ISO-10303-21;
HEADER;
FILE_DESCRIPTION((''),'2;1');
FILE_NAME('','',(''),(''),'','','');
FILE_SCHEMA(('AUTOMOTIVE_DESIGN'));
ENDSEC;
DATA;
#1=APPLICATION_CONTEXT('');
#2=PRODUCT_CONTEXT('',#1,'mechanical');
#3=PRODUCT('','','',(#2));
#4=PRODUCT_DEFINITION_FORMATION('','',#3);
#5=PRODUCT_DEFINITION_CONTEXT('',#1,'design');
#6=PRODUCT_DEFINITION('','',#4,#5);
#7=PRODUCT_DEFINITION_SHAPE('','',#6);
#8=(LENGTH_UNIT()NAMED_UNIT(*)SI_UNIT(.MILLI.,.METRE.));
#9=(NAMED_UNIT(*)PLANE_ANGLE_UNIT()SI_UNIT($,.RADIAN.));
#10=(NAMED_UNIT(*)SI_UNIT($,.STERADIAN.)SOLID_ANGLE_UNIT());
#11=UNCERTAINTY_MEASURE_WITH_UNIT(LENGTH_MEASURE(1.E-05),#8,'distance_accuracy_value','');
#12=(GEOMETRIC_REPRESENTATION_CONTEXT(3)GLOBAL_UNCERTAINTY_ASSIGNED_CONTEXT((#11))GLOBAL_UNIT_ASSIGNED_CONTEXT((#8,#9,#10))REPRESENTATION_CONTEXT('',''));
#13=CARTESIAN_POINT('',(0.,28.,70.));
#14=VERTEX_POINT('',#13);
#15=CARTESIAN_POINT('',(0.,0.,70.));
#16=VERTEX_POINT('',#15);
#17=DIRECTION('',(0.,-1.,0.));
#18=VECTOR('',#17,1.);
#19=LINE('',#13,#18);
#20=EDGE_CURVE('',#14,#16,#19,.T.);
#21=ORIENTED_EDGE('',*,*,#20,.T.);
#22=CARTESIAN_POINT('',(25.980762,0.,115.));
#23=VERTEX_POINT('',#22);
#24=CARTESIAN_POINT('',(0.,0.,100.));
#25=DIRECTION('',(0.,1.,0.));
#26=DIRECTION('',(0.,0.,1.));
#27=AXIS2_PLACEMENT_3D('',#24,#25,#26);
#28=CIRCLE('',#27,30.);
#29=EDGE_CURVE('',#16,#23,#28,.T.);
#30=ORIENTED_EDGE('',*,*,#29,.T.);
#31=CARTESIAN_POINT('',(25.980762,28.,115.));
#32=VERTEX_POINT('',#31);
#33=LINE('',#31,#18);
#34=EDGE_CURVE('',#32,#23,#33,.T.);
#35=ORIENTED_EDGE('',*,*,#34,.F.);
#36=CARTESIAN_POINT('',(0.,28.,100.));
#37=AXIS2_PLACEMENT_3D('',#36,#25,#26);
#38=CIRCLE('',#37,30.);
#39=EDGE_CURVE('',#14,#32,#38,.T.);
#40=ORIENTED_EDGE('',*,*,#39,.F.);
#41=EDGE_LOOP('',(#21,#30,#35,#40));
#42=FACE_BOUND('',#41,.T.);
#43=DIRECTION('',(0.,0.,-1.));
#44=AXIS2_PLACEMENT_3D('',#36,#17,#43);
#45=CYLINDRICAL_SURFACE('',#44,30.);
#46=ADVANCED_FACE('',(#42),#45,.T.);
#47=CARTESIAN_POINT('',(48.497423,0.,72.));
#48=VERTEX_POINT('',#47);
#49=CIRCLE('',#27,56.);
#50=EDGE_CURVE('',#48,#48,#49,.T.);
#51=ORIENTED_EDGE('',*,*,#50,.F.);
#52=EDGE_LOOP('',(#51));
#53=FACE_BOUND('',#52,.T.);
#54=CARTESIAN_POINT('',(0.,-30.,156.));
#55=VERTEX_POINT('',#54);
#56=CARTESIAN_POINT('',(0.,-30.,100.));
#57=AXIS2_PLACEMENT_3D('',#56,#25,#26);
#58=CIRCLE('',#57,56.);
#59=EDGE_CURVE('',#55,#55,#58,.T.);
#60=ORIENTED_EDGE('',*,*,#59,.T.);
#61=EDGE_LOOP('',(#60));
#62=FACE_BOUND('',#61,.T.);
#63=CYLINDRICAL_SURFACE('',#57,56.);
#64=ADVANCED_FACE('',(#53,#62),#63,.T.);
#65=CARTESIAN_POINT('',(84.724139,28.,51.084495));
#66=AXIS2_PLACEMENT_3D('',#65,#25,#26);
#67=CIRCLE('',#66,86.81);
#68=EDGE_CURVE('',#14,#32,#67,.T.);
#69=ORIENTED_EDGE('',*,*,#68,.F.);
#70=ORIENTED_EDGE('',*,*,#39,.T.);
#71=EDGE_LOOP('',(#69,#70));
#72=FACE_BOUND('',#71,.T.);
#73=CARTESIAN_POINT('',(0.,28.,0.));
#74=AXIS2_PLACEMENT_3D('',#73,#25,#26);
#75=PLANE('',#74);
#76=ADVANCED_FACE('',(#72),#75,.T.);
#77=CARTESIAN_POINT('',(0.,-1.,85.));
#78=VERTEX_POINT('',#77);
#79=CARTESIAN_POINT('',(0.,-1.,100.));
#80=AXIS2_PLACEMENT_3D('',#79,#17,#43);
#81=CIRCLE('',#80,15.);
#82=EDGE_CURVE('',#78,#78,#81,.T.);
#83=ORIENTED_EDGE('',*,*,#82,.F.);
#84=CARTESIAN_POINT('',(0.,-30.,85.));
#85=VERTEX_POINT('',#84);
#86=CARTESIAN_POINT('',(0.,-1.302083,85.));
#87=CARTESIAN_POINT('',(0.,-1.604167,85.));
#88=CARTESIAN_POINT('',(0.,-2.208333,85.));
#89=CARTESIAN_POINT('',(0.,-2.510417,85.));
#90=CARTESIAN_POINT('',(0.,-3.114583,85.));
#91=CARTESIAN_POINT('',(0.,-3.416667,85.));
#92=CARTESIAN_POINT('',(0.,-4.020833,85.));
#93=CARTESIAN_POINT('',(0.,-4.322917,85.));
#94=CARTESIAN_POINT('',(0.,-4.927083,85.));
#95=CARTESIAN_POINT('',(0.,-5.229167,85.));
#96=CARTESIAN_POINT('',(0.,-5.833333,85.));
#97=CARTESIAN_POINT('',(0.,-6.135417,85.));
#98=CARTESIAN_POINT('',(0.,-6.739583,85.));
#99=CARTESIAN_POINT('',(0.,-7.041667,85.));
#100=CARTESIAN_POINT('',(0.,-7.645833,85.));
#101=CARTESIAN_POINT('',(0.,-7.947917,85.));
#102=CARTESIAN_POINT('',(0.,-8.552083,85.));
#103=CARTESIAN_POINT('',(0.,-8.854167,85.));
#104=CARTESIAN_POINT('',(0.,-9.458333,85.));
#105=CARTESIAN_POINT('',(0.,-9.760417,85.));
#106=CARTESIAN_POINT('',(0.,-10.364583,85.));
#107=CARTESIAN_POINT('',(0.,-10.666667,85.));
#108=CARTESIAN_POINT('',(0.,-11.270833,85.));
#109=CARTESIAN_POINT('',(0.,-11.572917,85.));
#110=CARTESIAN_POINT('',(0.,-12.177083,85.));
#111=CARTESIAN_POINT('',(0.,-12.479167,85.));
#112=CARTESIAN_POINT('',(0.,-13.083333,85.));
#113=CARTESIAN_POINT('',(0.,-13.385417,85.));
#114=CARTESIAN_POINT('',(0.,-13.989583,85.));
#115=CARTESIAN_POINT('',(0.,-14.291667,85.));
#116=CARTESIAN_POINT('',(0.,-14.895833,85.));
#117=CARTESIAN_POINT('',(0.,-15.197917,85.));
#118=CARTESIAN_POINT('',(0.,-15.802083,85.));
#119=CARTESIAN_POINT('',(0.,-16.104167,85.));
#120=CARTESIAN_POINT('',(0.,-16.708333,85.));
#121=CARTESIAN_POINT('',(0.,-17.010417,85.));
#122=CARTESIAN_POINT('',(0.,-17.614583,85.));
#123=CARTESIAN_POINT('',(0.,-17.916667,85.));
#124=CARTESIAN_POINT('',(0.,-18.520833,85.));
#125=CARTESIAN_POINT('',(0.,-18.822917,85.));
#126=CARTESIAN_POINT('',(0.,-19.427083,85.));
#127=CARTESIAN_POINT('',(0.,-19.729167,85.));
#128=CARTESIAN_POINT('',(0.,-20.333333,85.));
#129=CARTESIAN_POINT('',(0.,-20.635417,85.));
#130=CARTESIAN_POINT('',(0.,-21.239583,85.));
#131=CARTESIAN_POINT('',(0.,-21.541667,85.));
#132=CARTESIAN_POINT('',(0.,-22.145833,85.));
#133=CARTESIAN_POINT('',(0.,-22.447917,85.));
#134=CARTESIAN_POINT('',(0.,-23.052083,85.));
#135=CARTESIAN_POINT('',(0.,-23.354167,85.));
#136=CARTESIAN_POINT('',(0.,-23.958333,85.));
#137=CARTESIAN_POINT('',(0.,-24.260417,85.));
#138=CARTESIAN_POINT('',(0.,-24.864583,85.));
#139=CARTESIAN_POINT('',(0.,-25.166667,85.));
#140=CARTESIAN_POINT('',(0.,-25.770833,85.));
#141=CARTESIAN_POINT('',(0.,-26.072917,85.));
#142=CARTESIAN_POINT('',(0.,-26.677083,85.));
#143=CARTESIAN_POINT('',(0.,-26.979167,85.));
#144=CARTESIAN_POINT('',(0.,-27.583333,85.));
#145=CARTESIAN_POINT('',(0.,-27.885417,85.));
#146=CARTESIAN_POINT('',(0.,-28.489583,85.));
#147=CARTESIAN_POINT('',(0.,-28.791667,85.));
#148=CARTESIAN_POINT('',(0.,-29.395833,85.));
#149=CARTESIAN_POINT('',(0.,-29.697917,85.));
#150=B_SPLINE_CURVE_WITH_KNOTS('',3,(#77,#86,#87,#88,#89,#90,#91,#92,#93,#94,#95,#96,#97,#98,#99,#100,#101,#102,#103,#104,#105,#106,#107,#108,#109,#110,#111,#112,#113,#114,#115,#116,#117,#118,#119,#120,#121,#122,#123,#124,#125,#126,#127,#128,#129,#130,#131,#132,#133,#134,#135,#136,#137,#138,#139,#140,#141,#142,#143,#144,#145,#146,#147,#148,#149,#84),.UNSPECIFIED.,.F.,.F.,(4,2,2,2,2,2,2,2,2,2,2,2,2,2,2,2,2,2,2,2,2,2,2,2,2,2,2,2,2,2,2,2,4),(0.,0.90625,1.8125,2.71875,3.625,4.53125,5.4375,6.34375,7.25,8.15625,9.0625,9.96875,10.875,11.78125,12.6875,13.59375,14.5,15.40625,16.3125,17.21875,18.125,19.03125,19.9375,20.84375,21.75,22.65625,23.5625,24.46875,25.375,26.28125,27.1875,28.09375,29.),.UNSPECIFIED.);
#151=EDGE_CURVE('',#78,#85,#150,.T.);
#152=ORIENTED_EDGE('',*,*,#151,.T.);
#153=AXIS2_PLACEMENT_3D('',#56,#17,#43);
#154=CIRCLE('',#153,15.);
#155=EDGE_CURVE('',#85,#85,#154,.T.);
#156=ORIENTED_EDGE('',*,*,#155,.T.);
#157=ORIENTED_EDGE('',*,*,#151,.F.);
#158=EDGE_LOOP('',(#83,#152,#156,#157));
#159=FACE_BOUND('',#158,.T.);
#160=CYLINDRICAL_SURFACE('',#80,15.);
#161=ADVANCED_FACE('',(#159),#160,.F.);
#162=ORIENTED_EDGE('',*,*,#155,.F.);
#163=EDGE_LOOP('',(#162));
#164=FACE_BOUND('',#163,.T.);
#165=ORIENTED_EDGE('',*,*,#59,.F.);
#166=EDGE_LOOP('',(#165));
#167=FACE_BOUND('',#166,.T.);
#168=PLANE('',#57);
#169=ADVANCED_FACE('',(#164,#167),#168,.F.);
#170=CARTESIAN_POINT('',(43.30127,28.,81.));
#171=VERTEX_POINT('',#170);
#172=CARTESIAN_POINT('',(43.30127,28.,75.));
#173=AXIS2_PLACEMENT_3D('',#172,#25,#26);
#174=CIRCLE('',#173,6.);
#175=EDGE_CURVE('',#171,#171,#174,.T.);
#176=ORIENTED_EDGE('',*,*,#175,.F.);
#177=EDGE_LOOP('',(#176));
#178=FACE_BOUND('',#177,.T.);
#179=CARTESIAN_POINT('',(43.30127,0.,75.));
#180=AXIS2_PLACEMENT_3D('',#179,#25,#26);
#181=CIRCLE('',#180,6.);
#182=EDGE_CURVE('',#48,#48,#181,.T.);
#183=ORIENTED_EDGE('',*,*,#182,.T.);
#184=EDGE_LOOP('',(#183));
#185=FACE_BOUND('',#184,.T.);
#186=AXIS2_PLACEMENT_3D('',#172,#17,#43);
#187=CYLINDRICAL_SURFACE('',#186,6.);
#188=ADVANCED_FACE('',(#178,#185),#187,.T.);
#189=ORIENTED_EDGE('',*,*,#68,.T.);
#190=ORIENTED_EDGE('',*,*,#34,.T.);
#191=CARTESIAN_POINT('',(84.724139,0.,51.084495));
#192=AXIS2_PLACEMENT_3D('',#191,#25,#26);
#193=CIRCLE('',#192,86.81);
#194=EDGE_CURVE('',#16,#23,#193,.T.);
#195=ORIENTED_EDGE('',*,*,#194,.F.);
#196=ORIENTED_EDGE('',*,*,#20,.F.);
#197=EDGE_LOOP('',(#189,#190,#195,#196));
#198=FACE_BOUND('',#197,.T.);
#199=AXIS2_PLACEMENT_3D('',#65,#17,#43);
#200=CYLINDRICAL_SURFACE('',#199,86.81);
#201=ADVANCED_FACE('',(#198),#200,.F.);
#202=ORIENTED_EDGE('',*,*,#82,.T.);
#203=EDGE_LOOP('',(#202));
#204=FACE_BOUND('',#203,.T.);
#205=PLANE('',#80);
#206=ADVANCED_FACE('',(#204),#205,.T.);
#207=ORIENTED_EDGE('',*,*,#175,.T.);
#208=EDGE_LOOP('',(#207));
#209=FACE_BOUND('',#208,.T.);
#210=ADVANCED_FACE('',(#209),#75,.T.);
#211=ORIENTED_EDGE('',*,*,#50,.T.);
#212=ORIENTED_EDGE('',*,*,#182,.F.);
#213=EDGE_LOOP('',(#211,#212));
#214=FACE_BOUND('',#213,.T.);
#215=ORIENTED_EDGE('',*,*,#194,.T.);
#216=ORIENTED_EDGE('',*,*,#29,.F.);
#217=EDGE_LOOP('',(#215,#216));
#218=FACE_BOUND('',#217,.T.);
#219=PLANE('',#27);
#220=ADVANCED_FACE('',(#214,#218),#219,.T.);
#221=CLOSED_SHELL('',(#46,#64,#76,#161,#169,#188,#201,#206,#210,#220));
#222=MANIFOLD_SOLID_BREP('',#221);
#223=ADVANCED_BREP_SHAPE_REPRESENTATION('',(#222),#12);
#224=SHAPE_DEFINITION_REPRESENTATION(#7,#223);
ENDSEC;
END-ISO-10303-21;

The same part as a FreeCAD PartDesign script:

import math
import FreeCAD as App
import Part
import Sketcher
from FreeCAD import Vector

doc = App.newDocument("Part")
body = doc.addObject("PartDesign::Body", "Body")

# Sketch on XZ plane
sketch1 = doc.addObject("Sketcher::SketchObject", "Sketch")
body.addObject(sketch1)
sketch1.AttachmentSupport = (doc.XZ_Plane, [""])
sketch1.MapMode = "FlatFace"
sketch1.addGeometry(Part.Circle(Vector(43, 75, 0), Vector(0, 0, 1), 6), False)
sketch1.addConstraint([
    Sketcher.Constraint("Diameter", 0, 12.0),
    Sketcher.Constraint("DistanceY", -1, 1, 0, 3, 75.0),
    Sketcher.Constraint("DistanceX", -1, 1, 0, 3, 43.30127),
])
pad1 = doc.addObject("PartDesign::Pad", "Pad")
body.addObject(pad1)
pad1.Profile = sketch1
pad1.Length = 28
pad1.Reversed = True
body2 = doc.addObject("PartDesign::Body", "Body001")

# Sketch on XZ plane
sketch2 = doc.addObject("Sketcher::SketchObject", "Sketch001")
body2.addObject(sketch2)
sketch2.AttachmentSupport = (doc.getObject("XZ_Plane001"), [""])
sketch2.MapMode = "FlatFace"
sketch2.addGeometry([
    Part.ArcOfCircle(Part.Circle(Vector(85, 51, 0), Vector(0, 0, 1), 87), math.radians(133), math.radians(167)),
    Part.ArcOfCircle(Part.Circle(Vector(0, 100, 0), Vector(0, 0, 1), 30), math.radians(30), math.radians(270)),
], False)
sketch2.addConstraint([
    Sketcher.Constraint("Coincident", 0, 1, 1, 1),
    Sketcher.Constraint("Coincident", 1, 2, 0, 2),
    Sketcher.Constraint("PointOnObject", 1, 3, -2),
    Sketcher.Constraint("PointOnObject", 1, 2, -2),
    Sketcher.Constraint("Radius", 1, 30.0),
    Sketcher.Constraint("Radius", 0, 86.81),
    Sketcher.Constraint("DistanceY", -1, 1, 1, 3, 100.0),
    Sketcher.Constraint("DistanceY", -1, 1, 0, 1, 115.0),
])
pad2 = doc.addObject("PartDesign::Pad", "Pad001")
body2.addObject(pad2)
pad2.Profile = sketch2
pad2.Length = 28
pad2.Reversed = True
body.AllowCompound = True
doc.recompute()

boolean = doc.addObject("PartDesign::Boolean", "Boolean")
body.addObject(boolean)
boolean.Type = "Fuse"
boolean.addObjects([body2])

# Sketch on XZ plane
sketch3 = doc.addObject("Sketcher::SketchObject", "Sketch002")
body.addObject(sketch3)
sketch3.AttachmentSupport = (doc.XZ_Plane, [""])
sketch3.MapMode = "FlatFace"
sketch3.addGeometry(Part.Circle(Vector(0, 100, 0), Vector(0, 0, 1), 56), False)
sketch3.addConstraint([
    Sketcher.Constraint("PointOnObject", 0, 3, -2),
    Sketcher.Constraint("Diameter", 0, 112.0),
    Sketcher.Constraint("DistanceY", -1, 1, 0, 3, 100.0),
])
pad3 = doc.addObject("PartDesign::Pad", "Pad002")
body.addObject(pad3)
pad3.Profile = sketch3
pad3.Length = 30

# Sketch on XZ plane
sketch4 = doc.addObject("Sketcher::SketchObject", "Sketch003")
body.addObject(sketch4)
sketch4.AttachmentSupport = (doc.XZ_Plane, [""])
sketch4.MapMode = "FlatFace"
sketch4.AttachmentOffset = App.Placement(Vector(0, 0, 30), App.Rotation())
sketch4.addGeometry(Part.Circle(Vector(0, 100, 0), Vector(0, 0, 1), 15), False)
sketch4.addConstraint([
    Sketcher.Constraint("PointOnObject", 0, 3, -2),
    Sketcher.Constraint("Diameter", 0, 30.0),
    Sketcher.Constraint("DistanceY", -1, 1, 0, 3, 100.0),
])
pocket1 = doc.addObject("PartDesign::Pocket", "Pocket")
body.addObject(pocket1)
pocket1.Profile = sketch4
pocket1.Length = 29

doc.recompute()
